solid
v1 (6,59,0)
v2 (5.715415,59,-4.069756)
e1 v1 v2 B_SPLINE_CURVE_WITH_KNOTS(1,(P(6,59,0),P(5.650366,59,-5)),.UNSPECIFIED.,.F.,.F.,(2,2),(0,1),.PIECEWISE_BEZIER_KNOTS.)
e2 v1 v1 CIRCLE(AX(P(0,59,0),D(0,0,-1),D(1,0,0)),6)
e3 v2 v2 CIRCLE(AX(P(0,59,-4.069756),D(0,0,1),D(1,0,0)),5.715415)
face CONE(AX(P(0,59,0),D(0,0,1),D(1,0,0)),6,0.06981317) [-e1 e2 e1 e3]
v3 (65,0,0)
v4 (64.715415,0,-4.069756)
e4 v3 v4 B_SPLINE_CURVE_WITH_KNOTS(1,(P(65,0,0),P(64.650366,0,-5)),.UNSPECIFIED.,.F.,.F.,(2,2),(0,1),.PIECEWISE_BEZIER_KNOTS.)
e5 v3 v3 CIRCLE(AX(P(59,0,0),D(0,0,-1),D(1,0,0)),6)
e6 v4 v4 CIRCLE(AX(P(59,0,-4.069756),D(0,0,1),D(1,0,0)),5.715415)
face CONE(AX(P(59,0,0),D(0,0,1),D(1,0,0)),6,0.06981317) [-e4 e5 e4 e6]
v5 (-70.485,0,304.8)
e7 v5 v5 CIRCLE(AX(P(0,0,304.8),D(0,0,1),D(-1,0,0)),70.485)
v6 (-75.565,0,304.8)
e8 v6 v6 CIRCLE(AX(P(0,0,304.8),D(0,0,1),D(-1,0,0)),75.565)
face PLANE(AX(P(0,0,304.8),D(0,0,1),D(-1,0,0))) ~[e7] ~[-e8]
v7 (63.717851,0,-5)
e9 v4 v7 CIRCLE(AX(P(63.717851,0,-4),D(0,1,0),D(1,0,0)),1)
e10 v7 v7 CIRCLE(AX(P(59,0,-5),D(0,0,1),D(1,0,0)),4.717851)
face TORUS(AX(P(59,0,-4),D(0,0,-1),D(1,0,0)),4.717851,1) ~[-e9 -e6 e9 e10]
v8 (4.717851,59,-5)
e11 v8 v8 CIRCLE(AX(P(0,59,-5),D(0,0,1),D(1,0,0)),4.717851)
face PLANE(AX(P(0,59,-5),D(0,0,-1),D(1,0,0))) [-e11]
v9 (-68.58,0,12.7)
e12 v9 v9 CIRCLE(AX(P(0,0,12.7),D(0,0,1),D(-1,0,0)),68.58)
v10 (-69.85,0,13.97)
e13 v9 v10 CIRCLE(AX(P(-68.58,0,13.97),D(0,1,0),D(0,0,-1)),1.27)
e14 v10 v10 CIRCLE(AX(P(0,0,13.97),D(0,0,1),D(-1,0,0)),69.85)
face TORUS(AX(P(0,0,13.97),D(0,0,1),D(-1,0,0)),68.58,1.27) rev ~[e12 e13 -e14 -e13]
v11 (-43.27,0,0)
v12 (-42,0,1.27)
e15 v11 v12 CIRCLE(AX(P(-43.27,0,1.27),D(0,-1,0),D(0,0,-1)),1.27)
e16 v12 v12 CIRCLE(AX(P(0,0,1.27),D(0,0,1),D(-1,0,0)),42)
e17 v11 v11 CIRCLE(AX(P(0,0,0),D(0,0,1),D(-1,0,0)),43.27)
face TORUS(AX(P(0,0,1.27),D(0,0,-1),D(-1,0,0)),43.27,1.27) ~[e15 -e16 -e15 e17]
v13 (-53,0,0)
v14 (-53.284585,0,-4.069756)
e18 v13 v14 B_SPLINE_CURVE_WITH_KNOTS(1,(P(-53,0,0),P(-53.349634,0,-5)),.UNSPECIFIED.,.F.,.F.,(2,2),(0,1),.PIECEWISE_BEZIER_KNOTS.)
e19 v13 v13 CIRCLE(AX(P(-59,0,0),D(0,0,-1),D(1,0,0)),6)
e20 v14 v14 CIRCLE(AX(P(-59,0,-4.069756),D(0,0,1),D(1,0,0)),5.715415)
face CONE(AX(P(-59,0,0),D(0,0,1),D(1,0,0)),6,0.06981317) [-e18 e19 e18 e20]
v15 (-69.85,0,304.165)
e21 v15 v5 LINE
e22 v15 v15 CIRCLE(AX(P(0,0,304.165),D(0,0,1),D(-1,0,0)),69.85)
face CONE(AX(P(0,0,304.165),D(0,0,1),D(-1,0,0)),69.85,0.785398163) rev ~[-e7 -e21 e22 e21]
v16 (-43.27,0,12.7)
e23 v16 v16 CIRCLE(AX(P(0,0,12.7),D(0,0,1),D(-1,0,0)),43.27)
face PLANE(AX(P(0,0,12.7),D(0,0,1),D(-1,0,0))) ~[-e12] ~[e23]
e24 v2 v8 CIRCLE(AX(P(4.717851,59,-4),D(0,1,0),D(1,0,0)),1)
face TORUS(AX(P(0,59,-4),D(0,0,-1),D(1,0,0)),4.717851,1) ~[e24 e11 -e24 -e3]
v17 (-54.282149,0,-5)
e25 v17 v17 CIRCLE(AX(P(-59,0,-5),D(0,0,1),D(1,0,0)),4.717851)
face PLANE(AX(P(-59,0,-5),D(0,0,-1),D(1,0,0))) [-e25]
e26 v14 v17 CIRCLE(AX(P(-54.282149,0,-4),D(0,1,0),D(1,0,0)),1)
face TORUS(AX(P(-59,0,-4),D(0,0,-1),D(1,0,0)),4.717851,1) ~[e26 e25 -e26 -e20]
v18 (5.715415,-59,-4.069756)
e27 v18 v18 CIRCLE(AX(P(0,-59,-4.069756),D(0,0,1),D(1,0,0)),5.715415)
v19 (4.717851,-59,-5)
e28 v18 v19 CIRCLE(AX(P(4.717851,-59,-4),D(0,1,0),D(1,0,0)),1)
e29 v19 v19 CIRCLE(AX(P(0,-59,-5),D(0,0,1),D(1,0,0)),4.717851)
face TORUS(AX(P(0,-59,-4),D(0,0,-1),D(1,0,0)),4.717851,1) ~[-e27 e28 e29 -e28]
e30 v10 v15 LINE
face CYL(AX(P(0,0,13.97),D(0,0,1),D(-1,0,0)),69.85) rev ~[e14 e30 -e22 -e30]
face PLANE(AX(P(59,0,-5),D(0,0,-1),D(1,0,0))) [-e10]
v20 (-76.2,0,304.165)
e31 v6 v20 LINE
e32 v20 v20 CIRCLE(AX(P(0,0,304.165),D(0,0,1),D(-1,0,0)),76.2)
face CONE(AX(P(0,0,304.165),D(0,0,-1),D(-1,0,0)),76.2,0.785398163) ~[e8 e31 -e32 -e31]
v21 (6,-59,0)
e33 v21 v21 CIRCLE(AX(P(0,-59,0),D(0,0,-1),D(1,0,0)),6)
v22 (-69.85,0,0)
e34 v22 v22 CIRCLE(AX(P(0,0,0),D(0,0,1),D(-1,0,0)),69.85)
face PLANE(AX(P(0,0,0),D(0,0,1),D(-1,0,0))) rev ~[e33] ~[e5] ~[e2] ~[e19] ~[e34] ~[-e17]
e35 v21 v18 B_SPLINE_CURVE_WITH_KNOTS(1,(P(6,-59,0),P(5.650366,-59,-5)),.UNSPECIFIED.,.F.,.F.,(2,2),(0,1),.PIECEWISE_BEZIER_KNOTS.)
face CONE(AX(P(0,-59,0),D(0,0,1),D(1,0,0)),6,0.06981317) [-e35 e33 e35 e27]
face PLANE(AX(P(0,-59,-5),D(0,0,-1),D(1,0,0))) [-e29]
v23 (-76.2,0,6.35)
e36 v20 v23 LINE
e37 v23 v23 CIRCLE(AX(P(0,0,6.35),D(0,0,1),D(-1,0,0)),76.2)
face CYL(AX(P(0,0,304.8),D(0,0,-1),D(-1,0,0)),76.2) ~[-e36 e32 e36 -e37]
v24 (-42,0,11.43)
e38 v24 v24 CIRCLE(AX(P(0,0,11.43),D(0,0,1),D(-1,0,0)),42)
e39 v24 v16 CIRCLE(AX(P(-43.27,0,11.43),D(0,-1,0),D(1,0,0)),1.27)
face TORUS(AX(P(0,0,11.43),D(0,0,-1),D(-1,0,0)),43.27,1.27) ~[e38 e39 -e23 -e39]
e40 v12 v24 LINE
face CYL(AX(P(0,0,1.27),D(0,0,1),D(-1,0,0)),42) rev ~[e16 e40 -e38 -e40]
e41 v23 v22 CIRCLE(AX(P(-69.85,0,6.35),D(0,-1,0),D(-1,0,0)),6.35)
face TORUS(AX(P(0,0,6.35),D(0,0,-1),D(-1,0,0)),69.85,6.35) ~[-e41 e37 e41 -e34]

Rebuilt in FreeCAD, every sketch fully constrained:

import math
import FreeCAD as App
import Part
import Sketcher

V = App.Vector
Q = App.Units.Quantity


def edges_at(feature, points):
    """Names of the edges that pass closest to the given points."""
    edges = feature.Shape.Edges
    near = lambda p: min(range(len(edges)), key=lambda i: edges[i].distToShape(Part.Vertex(*p))[0])
    return sorted({f"Edge{near(p) + 1}" for p in points})

doc = App.newDocument("Part")
body = doc.addObject("PartDesign::Body", "Body")

# Sketch on XZ plane
sketch1 = body.newObject("Sketcher::SketchObject", "Sketch")
sketch1.AttachmentSupport = (doc.getObject("XZ_Plane"), [""])
sketch1.MapMode = "FlatFace"
sketch1.addGeometry([
    Part.LineSegment(V(-69.8, 0, 0), V(-43.3, 0, 0)),  # 0
    Part.ArcOfCircle(Part.Circle(V(-43.3, 1.3, 0), V(0, 0, 1), 1.3), math.radians(-90), math.radians(0)),  # 1
    Part.LineSegment(V(-42, 1.3, 0), V(-42, 11.4, 0)),  # 2
    Part.ArcOfCircle(Part.Circle(V(-43.3, 11.4, 0), V(0, 0, 1), 1.3), math.radians(0), math.radians(90)),  # 3
    Part.LineSegment(V(-43.3, 12.7, 0), V(-68.6, 12.7, 0)),  # 4
    Part.ArcOfCircle(Part.Circle(V(-68.6, 14, 0), V(0, 0, 1), 1.3), math.radians(180), math.radians(270)),  # 5
    Part.LineSegment(V(-69.8, 14, 0), V(-69.8, 304.8, 0)),  # 6
    Part.LineSegment(V(-69.8, 304.8, 0), V(-76.2, 304.8, 0)),  # 7
    Part.LineSegment(V(-76.2, 304.8, 0), V(-76.2, 6.3, 0)),  # 8
    Part.ArcOfCircle(Part.Circle(V(-69.8, 6.3, 0), V(0, 0, 1), 6.3), math.radians(180), math.radians(270)),  # 9
], False)
sketch1.addConstraint([
    Sketcher.Constraint("Tangent", 0, 2, 1, 1),
    Sketcher.Constraint("Tangent", 1, 2, 2, 1),
    Sketcher.Constraint("Tangent", 2, 2, 3, 1),
    Sketcher.Constraint("Tangent", 3, 2, 4, 1),
    Sketcher.Constraint("Tangent", 4, 2, 5, 2),
    Sketcher.Constraint("Tangent", 5, 1, 6, 1),
    Sketcher.Constraint("Coincident", 6, 2, 7, 1),
    Sketcher.Constraint("Coincident", 7, 2, 8, 1),
    Sketcher.Constraint("Tangent", 8, 2, 9, 1),
    Sketcher.Constraint("Tangent", 9, 2, 0, 1),
    Sketcher.Constraint("Horizontal", 0),
    Sketcher.Constraint("Vertical", 2),
    Sketcher.Constraint("Horizontal", 4),
    Sketcher.Constraint("Vertical", 6),
    Sketcher.Constraint("Horizontal", 7),
    Sketcher.Constraint("Vertical", 8),
    Sketcher.Constraint("Equal", 1, 3),
    Sketcher.Constraint("Equal", 3, 5),
    Sketcher.Constraint("PointOnObject", 0, 2, -1),
    Sketcher.Constraint("Vertical", 9, 3, 5, 1),
    Sketcher.Constraint("Radius", 1, Q("0.05 in")),
    Sketcher.Constraint("Radius", 9, Q("0.25 in")),
    Sketcher.Constraint("DistanceY", 2, 1, 2, 2, Q("0.4 in")),
    Sketcher.Constraint("DistanceY", -1, 1, 6, 2, Q("12 in")),
    Sketcher.Constraint("DistanceX", 7, 2, -1, 1, Q("3 in")),
    Sketcher.Constraint("DistanceX", 0, 1, 0, 2, Q("26.58 mm")),
])
revolution = body.newObject("PartDesign::Revolution", "Revolution")
revolution.Profile = sketch1
revolution.ReferenceAxis = (sketch1, ["V_Axis"])
revolution.Angle = 360
doc.recompute()

chamfer = body.newObject("PartDesign::Chamfer", "Chamfer")
chamfer.Base = (revolution, edges_at(revolution, [(69.85, 0, 304.8), (76.2, 0, 304.8)]))
chamfer.Size = Q("0.025 in")

# Sketch on XY plane
sketch2 = body.newObject("Sketcher::SketchObject", "Sketch001")
sketch2.AttachmentSupport = (doc.getObject("XY_Plane"), [""])
sketch2.MapMode = "FlatFace"
sketch2.addGeometry([
    Part.Circle(V(0, -59, 0), V(0, 0, 1), 6),
    Part.Circle(V(-59, 0, 0), V(0, 0, 1), 6),
    Part.Circle(V(0, 59, 0), V(0, 0, 1), 6),
    Part.Circle(V(59, 0, 0), V(0, 0, 1), 6),
], False)
sketch2.addConstraint([
    Sketcher.Constraint("Equal", 0, 1),
    Sketcher.Constraint("Equal", 1, 2),
    Sketcher.Constraint("Equal", 2, 3),
    Sketcher.Constraint("Symmetric", 0, 3, 2, 3, -1, 1),
    Sketcher.Constraint("Symmetric", 1, 3, 3, 3, -1, 1),
    Sketcher.Constraint("PointOnObject", 0, 3, -2),
    Sketcher.Constraint("PointOnObject", 1, 3, -1),
    Sketcher.Constraint("Diameter", 0, Q("12 mm")),
    Sketcher.Constraint("DistanceY", 0, 3, -1, 1, Q("59 mm")),
    Sketcher.Constraint("DistanceX", 1, 3, -1, 1, Q("59 mm")),
])
pad1 = body.newObject("PartDesign::Pad", "Pad")
pad1.Profile = sketch2
pad1.Length = 5
pad1.Reversed = True
pad1.TaperAngle = -4
doc.recompute()

fillet = body.newObject("PartDesign::Fillet", "Fillet")
fillet.Base = (pad1, edges_at(pad1, [
    (-5.65, -59, -5),
    (-64.65, 0, -5),
    (-5.65, 59, -5),
    (53.35, 0, -5),
]))
fillet.Radius = 1

doc.recompute()
